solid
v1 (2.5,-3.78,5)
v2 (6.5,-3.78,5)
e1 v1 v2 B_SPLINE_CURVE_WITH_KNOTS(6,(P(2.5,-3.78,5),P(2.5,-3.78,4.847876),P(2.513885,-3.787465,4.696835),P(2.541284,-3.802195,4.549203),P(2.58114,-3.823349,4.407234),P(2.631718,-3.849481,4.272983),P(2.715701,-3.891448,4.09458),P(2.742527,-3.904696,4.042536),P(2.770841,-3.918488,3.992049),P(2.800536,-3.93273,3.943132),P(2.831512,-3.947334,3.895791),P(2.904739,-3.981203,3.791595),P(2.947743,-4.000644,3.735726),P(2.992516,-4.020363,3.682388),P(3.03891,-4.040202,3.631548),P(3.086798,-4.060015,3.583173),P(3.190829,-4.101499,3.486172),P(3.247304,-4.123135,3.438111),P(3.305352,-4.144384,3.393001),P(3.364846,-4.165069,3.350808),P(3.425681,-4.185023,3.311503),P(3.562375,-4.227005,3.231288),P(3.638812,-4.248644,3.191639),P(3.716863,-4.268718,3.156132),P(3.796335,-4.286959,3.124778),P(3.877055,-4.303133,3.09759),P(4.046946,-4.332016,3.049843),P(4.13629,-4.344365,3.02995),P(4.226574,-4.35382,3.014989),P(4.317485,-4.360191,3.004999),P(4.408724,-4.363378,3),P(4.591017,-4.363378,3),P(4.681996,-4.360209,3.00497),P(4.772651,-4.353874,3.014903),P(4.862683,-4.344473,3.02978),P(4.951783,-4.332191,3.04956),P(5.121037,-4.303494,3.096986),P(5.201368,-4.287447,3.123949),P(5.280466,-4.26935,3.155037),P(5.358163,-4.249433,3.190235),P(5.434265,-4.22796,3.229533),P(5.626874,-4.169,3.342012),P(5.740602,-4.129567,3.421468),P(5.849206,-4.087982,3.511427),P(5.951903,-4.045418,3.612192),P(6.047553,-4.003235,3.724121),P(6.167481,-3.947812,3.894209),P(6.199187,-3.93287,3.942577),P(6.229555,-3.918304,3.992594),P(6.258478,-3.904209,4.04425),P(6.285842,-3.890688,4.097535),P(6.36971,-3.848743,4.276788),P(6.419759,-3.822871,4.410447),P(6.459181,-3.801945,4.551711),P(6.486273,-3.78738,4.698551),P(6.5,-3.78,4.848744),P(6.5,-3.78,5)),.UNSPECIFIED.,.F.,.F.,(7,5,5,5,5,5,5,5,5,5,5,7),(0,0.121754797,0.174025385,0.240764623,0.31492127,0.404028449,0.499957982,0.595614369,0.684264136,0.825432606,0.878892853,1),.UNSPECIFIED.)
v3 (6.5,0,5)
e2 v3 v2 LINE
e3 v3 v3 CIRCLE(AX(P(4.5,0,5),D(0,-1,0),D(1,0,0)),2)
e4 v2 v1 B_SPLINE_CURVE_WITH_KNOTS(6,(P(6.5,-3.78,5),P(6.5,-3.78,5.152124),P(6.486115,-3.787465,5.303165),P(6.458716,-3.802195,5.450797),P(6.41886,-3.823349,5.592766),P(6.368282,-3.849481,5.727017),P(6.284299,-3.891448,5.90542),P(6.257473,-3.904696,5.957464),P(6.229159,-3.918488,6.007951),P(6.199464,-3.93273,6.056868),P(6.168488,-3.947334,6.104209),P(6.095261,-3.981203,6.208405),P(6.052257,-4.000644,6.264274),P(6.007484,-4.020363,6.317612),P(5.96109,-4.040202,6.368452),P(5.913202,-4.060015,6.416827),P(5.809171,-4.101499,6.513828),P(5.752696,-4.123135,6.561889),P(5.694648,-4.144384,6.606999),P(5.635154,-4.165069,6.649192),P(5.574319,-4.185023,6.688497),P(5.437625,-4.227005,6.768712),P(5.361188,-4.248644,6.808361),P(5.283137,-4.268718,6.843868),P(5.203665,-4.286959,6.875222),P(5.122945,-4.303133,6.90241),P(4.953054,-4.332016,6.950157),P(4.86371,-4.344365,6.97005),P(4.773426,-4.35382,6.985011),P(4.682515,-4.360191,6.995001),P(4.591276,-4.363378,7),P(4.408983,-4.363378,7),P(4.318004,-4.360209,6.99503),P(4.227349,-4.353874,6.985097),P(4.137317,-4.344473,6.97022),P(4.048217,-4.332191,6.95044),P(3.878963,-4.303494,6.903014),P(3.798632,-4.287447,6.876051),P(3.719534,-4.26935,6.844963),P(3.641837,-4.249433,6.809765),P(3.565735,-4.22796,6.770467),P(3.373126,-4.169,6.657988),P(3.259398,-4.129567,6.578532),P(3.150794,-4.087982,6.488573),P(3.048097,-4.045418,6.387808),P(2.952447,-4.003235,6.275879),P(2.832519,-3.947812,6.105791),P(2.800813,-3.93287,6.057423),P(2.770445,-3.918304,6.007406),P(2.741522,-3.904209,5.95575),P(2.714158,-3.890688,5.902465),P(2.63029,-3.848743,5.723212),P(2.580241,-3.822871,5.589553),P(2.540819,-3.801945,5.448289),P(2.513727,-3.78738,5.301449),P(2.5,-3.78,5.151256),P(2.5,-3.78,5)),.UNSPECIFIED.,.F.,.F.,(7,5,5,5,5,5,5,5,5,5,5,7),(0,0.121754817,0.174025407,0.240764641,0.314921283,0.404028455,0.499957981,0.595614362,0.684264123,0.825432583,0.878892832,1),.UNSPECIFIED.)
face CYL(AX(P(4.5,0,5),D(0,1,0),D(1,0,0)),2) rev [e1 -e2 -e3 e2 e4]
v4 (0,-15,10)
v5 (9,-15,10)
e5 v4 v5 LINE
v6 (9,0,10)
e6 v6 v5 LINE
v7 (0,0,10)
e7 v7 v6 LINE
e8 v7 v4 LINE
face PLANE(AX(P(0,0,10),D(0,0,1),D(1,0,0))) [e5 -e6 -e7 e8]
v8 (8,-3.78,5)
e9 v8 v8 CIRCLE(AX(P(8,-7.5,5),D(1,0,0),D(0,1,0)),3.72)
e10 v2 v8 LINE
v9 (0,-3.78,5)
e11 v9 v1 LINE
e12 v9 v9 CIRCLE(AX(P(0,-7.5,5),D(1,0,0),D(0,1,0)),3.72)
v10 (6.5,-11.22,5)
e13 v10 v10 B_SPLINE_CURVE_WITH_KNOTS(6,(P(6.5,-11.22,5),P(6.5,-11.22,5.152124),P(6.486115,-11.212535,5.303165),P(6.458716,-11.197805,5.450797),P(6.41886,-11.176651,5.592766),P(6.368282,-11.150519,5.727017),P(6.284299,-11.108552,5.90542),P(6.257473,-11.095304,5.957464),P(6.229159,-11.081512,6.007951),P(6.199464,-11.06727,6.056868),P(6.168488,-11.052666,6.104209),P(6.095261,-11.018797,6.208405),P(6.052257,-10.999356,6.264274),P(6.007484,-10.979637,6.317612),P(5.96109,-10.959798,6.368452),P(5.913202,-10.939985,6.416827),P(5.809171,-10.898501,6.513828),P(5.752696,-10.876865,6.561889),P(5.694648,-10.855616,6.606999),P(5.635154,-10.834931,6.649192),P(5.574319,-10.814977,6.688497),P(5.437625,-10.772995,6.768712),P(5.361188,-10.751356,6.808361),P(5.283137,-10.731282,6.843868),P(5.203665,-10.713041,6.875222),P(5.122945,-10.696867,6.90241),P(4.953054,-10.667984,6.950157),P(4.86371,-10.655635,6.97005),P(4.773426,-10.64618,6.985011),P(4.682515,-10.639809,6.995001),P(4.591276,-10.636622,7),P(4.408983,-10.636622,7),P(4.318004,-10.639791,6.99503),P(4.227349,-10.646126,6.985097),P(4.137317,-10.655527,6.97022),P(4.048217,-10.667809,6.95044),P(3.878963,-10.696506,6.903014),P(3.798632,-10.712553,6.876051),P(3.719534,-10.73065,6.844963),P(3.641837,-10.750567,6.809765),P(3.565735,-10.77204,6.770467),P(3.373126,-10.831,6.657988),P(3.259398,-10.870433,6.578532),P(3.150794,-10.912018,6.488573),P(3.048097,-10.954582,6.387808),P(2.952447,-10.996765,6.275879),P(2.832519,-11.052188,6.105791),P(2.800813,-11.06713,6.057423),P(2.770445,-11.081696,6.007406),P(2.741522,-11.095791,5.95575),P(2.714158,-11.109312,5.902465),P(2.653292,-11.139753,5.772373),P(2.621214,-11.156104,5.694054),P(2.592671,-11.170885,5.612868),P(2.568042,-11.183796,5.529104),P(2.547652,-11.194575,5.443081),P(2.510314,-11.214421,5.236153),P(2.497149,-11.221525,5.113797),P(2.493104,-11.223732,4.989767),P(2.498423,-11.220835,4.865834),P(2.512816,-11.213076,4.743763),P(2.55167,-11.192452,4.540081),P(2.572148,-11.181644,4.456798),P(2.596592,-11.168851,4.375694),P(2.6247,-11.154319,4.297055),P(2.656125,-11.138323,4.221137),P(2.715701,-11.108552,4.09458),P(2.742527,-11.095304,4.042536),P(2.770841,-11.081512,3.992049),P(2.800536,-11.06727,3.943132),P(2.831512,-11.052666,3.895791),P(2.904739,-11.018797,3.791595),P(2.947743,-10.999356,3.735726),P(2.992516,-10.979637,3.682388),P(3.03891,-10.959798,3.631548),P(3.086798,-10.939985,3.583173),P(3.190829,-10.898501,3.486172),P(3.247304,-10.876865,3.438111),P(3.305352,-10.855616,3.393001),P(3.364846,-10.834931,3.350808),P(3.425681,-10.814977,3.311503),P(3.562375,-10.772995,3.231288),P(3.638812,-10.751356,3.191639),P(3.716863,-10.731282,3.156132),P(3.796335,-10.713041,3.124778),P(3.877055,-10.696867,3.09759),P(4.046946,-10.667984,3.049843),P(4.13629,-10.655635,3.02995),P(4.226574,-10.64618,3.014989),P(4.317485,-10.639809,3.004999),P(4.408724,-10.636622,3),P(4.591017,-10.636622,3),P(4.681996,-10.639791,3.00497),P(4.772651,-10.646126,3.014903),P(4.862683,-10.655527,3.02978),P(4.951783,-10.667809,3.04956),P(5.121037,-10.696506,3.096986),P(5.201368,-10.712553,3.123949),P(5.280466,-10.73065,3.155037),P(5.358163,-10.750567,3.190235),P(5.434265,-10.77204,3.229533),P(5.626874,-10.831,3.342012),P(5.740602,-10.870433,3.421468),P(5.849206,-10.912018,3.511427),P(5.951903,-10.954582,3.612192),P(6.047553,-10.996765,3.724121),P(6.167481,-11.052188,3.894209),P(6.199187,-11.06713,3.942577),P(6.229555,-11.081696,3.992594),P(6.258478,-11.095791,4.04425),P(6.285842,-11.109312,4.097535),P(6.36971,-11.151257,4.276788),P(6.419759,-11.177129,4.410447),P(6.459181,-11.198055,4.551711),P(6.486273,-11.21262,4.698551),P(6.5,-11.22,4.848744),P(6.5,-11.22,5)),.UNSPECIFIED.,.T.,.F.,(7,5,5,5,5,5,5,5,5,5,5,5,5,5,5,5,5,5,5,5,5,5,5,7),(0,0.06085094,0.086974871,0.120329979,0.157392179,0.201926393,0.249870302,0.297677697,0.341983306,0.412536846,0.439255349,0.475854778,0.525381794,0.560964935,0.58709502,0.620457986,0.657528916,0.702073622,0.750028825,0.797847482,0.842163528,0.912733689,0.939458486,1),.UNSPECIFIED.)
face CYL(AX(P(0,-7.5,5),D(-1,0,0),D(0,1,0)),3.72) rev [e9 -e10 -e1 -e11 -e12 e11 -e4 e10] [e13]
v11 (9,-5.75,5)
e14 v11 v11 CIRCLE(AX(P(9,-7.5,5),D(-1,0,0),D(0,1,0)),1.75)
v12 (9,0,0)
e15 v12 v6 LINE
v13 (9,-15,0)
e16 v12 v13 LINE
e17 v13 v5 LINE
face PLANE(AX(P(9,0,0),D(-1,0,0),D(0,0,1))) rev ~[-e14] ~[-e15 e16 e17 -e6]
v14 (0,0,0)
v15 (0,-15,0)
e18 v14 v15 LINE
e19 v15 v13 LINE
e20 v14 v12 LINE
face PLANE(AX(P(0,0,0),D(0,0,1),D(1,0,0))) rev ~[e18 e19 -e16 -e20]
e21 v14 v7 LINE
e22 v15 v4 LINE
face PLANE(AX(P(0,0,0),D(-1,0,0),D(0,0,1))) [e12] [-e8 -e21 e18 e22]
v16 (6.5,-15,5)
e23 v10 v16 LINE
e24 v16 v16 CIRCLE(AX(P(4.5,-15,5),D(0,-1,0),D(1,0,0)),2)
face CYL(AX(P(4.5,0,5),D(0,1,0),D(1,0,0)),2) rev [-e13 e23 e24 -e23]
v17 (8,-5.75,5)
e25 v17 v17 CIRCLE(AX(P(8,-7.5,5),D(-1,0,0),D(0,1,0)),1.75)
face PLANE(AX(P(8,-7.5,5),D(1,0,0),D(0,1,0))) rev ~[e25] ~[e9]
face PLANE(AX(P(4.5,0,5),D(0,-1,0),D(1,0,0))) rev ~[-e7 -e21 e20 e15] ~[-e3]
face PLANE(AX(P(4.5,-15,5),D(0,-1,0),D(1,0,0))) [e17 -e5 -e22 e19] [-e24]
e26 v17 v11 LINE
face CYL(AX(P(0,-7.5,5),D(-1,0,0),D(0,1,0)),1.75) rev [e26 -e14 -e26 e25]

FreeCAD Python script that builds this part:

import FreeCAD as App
import Part
import Sketcher

V = App.Vector


def add_polygon(sketch, points):
    """Adds a closed chain of lines whose ends are joined by coincident constraints."""
    first, n = sketch.GeometryCount, len(points)
    for a, b in zip(points, points[1:] + points[:1]):
        sketch.addGeometry(Part.LineSegment(App.Vector(*a, 0), App.Vector(*b, 0)), False)
    for i in range(n):
        sketch.addConstraint(Sketcher.Constraint("Coincident", first + i, 2, first + (i + 1) % n, 1))

doc = App.newDocument("Part")
body = doc.addObject("PartDesign::Body", "Body")

# Sketch on XZ plane
sketch1 = body.newObject("Sketcher::SketchObject", "Sketch")
sketch1.AttachmentSupport = (doc.getObject("XZ_Plane"), [""])
sketch1.MapMode = "FlatFace"
add_polygon(sketch1, [(0, 10), (0, 0), (9, 0), (9, 10)])  # lines 0-3
sketch1.addGeometry(Part.Circle(V(4.5, 5, 0), V(0, 0, 1), 2), False)  # 4
sketch1.addConstraint([
    Sketcher.Constraint("Vertical", 0),
    Sketcher.Constraint("Horizontal", 1),
    Sketcher.Constraint("Vertical", 2),
    Sketcher.Constraint("Horizontal", 3),
    Sketcher.Constraint("Coincident", 0, 2, -1, 1),
    Sketcher.Constraint("Diameter", 4, 4.0),
    Sketcher.Constraint("DistanceX", 1, 1, 1, 2, 9.0),
    Sketcher.Constraint("DistanceY", 0, 2, 0, 1, 10.0),
    Sketcher.Constraint("DistanceY", -1, 1, 4, 3, 5.0),
    Sketcher.Constraint("DistanceX", -1, 1, 4, 3, 4.5),
])
pad1 = body.newObject("PartDesign::Pad", "Pad")
pad1.Profile = sketch1
pad1.Length = 15

# Sketch on YZ plane
sketch2 = body.newObject("Sketcher::SketchObject", "Sketch001")
sketch2.AttachmentSupport = (doc.getObject("YZ_Plane"), [""])
sketch2.MapMode = "FlatFace"
sketch2.addGeometry(Part.Circle(V(-7.5, 5, 0), V(0, 0, 1), 1.75), False)
sketch2.addConstraint([
    Sketcher.Constraint("Diameter", 0, 3.5),
    Sketcher.Constraint("DistanceY", -1, 1, 0, 3, 5.0),
    Sketcher.Constraint("DistanceX", 0, 3, -1, 1, 7.5),
])
pocket1 = body.newObject("PartDesign::Pocket", "Pocket")
pocket1.Profile = sketch2
pocket1.Type = "ThroughAll"
pocket1.Reversed = True

# Sketch on YZ plane
sketch3 = body.newObject("Sketcher::SketchObject", "Sketch002")
sketch3.AttachmentSupport = (doc.getObject("YZ_Plane"), [""])
sketch3.MapMode = "FlatFace"
sketch3.addGeometry(Part.Circle(V(-7.5, 5, 0), V(0, 0, 1), 3.72), False)
sketch3.addConstraint([
    Sketcher.Constraint("Diameter", 0, 7.44),
    Sketcher.Constraint("DistanceY", -1, 1, 0, 3, 5.0),
    Sketcher.Constraint("DistanceX", 0, 3, -1, 1, 7.5),
])
pocket2 = body.newObject("PartDesign::Pocket", "Pocket001")
pocket2.Profile = sketch3
pocket2.Length = 8
pocket2.Reversed = True

doc.recompute()
